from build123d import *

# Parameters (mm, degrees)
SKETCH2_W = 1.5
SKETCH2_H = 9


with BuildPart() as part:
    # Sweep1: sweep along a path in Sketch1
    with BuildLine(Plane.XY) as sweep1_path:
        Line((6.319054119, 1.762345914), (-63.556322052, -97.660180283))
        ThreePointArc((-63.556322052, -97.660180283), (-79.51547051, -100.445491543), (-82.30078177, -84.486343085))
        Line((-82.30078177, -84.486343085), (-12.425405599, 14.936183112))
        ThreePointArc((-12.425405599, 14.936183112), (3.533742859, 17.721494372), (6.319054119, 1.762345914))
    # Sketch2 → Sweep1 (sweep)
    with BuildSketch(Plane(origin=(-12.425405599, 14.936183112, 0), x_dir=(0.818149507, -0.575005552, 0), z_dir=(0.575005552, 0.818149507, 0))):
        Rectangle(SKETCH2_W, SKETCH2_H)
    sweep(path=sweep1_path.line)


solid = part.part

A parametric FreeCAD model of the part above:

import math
import FreeCAD as App
import Part
import Sketcher

V = App.Vector

doc = App.newDocument("Part")
body = doc.addObject("PartDesign::Body", "Body")

sketch1 = doc.addObject("Sketcher::SketchObject", "Sketch")
body.addObject(sketch1)
sketch1.Placement = App.Placement(V(-12.425406, 14.936183, 0), App.Rotation(V(0.818149507, -0.575005552, 0), V(0, 0, -1.000000001), V(0.575005552, 0.818149507, 0), "ZXY"))
sketch1.addGeometry([
    Part.LineSegment(V(-0.75, 4.5, 0), V(-0.75, -4.5, 0)),
    Part.LineSegment(V(-0.75, -4.5, 0), V(0.75, -4.5, 0)),
    Part.LineSegment(V(0.75, -4.5, 0), V(0.75, 4.5, 0)),
    Part.LineSegment(V(0.75, 4.5, 0), V(-0.75, 4.5, 0)),
], False)
sketch1.addConstraint([
    Sketcher.Constraint("Coincident", 0, 2, 1, 1),
    Sketcher.Constraint("Coincident", 1, 2, 2, 1),
    Sketcher.Constraint("Coincident", 2, 2, 3, 1),
    Sketcher.Constraint("Coincident", 3, 2, 0, 1),
    Sketcher.Constraint("Vertical", 0),
    Sketcher.Constraint("Horizontal", 1),
    Sketcher.Constraint("Vertical", 2),
    Sketcher.Constraint("Horizontal", 3),
    Sketcher.Constraint("Symmetric", 0, 2, 2, 2, -1, 1),
    Sketcher.Constraint("DistanceY", 0, 2, 0, 1, 9.0),
    Sketcher.Constraint("DistanceX", 1, 1, 1, 2, 1.5),
])

sketch2 = doc.addObject("Sketcher::SketchObject", "Sketch001")
body.addObject(sketch2)
sketch2.AttachmentSupport = (doc.XY_Plane, [""])
sketch2.MapMode = "FlatFace"
sketch2.addGeometry([
    Part.LineSegment(V(6.319054, 1.762346, 0), V(-63.556322, -97.66018, 0)),
    Part.ArcOfCircle(Part.Circle(V(-72.928552, -91.073262, 0), V(0, 0, 1), 11.4554), math.radians(144.899979), math.radians(324.899979)),
    Part.LineSegment(V(-82.300782, -84.486343, 0), V(-12.425406, 14.936183, 0)),
    Part.ArcOfCircle(Part.Circle(V(-3.053176, 8.349265, 0), V(0, 0, 1), 11.4554), math.radians(-35.100021), math.radians(144.899979)),
], False)
sketch2.addConstraint([
    Sketcher.Constraint("Tangent", 0, 2, 1, 2),
    Sketcher.Constraint("Tangent", 1, 1, 2, 1),
    Sketcher.Constraint("Tangent", 2, 2, 3, 2),
    Sketcher.Constraint("Tangent", 3, 1, 0, 1),
    Sketcher.Constraint("Equal", 1, 3),
    Sketcher.Constraint("Radius", 1, 11.4554),
    Sketcher.Constraint("Distance", 0, 121.52122),
    Sketcher.Constraint("DistanceX", 1, 3, -1, 1, 72.928552),
    Sketcher.Constraint("DistanceY", 1, 3, -1, 1, 91.073262),
    Sketcher.Constraint("DistanceY", 0, 2, -1, 1, 97.66018),
])
doc.recompute()

additivepipe = doc.addObject("PartDesign::AdditivePipe", "AdditivePipe")
body.addObject(additivepipe)
additivepipe.Profile = sketch1
additivepipe.Spine = (sketch2, ["Edge1", "Edge2", "Edge3", "Edge4"])

doc.recompute()
